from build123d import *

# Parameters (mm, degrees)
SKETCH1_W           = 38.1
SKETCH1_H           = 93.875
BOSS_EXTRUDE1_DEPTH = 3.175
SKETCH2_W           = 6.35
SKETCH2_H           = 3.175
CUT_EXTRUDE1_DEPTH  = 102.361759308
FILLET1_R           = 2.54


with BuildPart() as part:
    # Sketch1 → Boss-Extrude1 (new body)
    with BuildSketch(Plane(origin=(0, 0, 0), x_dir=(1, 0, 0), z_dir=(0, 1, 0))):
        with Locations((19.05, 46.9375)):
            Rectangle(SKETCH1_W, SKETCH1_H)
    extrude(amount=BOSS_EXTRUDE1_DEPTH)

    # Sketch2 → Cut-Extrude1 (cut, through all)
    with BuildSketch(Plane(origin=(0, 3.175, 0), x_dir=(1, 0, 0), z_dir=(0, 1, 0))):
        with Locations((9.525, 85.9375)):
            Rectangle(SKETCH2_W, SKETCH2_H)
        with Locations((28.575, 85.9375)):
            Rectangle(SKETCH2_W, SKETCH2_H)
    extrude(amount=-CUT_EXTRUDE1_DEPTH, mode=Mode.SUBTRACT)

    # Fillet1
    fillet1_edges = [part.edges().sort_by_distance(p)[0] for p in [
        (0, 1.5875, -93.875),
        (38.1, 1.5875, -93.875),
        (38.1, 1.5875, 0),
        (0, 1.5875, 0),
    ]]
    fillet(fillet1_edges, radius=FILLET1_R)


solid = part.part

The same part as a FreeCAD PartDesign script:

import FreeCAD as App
import Part
import Sketcher
from FreeCAD import Vector
Q = App.Units.Quantity


def edges_at(feature, points):
    """Names of the edges that pass closest to the given points."""
    edges = feature.Shape.Edges
    near = lambda p: min(range(len(edges)), key=lambda i: edges[i].distToShape(Part.Vertex(*p))[0])
    return sorted({f"Edge{near(p) + 1}" for p in points})


def add_polygon(sketch, points):
    """Adds a closed chain of lines whose ends are joined by coincident constraints."""
    first, n = sketch.GeometryCount, len(points)
    for a, b in zip(points, points[1:] + points[:1]):
        sketch.addGeometry(Part.LineSegment(App.Vector(*a, 0), App.Vector(*b, 0)), False)
    for i in range(n):
        sketch.addConstraint(Sketcher.Constraint("Coincident", first + i, 2, first + (i + 1) % n, 1))

doc = App.newDocument("Part")
params = doc.addObject("Spreadsheet::Sheet", "Params")
for row, (alias, value) in enumerate([
    ("sketch1_width", "1.5 in"),
    ("pad1_length", "0.125 in"),
    ("sketch2_width", "0.25 in"),
    ("sketch2_height", "0.125 in"),
    ("fillet_radius", "0.1 in"),
], start=1):
    params.set(f"A{row}", alias)
    params.set(f"B{row}", "=" + value)
    params.setAlias(f"B{row}", alias)

body = doc.addObject("PartDesign::Body", "Body")

# Sketch on XZ plane
sketch1 = body.newObject("Sketcher::SketchObject", "Sketch")
sketch1.AttachmentSupport = (doc.getObject("XZ_Plane"), [""])
sketch1.MapMode = "FlatFace"
add_polygon(sketch1, [(0, -94), (0, 0), (38, 0), (38, -94)])  # lines 0-3
sketch1.addConstraint([
    Sketcher.Constraint("Vertical", 0),
    Sketcher.Constraint("Horizontal", 1),
    Sketcher.Constraint("Vertical", 2),
    Sketcher.Constraint("Horizontal", 3),
    Sketcher.Constraint("Coincident", 0, 2, -1, 1),
    Sketcher.Constraint("DistanceX", 1, 1, 1, 2, Q("1.5 in")),
    Sketcher.Constraint("DistanceY", 0, 1, 0, 2, 93.875),
])
sketch1.setExpression("Constraints[9]", "Params.sketch1_width")
pad1 = body.newObject("PartDesign::Pad", "Pad")
pad1.Profile = sketch1
pad1.setExpression("Length", "Params.pad1_length")
pad1.Reversed = True

# Sketch on XZ plane
sketch2 = body.newObject("Sketcher::SketchObject", "Sketch001")
sketch2.AttachmentSupport = (doc.getObject("XZ_Plane"), [""])
sketch2.MapMode = "FlatFace"
sketch2.AttachmentOffset = App.Placement(Vector(0, 0, -0.125 * 25.4), App.Rotation())
add_polygon(sketch2, [(6.3, -87.5), (6.3, -84.3), (12.7, -84.3), (12.7, -87.5)])  # lines 0-3
add_polygon(sketch2, [(25.4, -87.5), (25.4, -84.3), (31.8, -84.3), (31.8, -87.5)])  # lines 4-7
sketch2.addConstraint([
    Sketcher.Constraint("Vertical", 0),
    Sketcher.Constraint("Horizontal", 1),
    Sketcher.Constraint("Vertical", 2),
    Sketcher.Constraint("Horizontal", 3),
    Sketcher.Constraint("Vertical", 4),
    Sketcher.Constraint("Horizontal", 5),
    Sketcher.Constraint("Vertical", 6),
    Sketcher.Constraint("Horizontal", 7),
    Sketcher.Constraint("Horizontal", 1, 2, 4, 2),
    Sketcher.Constraint("Horizontal", 3, 2, 6, 2),
    Sketcher.Constraint("Equal", 3, 5),
    Sketcher.Constraint("DistanceX", -1, 1, 4, 2, Q("1 in")),
    Sketcher.Constraint("DistanceX", 0, 2, 5, 2, Q("1 in")),
    Sketcher.Constraint("DistanceX", 1, 1, 1, 2, Q("0.25 in")),
    Sketcher.Constraint("DistanceY", 0, 1, 0, 2, Q("0.125 in")),
    Sketcher.Constraint("DistanceY", 0, 2, -1, 1, 84.35),
])
sketch2.setExpression("Constraints[21]", "Params.sketch2_width")
sketch2.setExpression("Constraints[22]", "Params.sketch2_height")
pocket1 = body.newObject("PartDesign::Pocket", "Pocket")
pocket1.Profile = sketch2
pocket1.Type = "ThroughAll"
pocket1.Reversed = True
doc.recompute()

fillet = body.newObject("PartDesign::Fillet", "Fillet")
fillet.Base = (pocket1, edges_at(pocket1, [
    (0, 1.587, -93.875),
    (38.1, 1.587, -93.875),
    (38.1, 1.587, 0),
    (0, 1.587, 0),
]))
fillet.setExpression("Radius", "Params.fillet_radius")

doc.recompute()
